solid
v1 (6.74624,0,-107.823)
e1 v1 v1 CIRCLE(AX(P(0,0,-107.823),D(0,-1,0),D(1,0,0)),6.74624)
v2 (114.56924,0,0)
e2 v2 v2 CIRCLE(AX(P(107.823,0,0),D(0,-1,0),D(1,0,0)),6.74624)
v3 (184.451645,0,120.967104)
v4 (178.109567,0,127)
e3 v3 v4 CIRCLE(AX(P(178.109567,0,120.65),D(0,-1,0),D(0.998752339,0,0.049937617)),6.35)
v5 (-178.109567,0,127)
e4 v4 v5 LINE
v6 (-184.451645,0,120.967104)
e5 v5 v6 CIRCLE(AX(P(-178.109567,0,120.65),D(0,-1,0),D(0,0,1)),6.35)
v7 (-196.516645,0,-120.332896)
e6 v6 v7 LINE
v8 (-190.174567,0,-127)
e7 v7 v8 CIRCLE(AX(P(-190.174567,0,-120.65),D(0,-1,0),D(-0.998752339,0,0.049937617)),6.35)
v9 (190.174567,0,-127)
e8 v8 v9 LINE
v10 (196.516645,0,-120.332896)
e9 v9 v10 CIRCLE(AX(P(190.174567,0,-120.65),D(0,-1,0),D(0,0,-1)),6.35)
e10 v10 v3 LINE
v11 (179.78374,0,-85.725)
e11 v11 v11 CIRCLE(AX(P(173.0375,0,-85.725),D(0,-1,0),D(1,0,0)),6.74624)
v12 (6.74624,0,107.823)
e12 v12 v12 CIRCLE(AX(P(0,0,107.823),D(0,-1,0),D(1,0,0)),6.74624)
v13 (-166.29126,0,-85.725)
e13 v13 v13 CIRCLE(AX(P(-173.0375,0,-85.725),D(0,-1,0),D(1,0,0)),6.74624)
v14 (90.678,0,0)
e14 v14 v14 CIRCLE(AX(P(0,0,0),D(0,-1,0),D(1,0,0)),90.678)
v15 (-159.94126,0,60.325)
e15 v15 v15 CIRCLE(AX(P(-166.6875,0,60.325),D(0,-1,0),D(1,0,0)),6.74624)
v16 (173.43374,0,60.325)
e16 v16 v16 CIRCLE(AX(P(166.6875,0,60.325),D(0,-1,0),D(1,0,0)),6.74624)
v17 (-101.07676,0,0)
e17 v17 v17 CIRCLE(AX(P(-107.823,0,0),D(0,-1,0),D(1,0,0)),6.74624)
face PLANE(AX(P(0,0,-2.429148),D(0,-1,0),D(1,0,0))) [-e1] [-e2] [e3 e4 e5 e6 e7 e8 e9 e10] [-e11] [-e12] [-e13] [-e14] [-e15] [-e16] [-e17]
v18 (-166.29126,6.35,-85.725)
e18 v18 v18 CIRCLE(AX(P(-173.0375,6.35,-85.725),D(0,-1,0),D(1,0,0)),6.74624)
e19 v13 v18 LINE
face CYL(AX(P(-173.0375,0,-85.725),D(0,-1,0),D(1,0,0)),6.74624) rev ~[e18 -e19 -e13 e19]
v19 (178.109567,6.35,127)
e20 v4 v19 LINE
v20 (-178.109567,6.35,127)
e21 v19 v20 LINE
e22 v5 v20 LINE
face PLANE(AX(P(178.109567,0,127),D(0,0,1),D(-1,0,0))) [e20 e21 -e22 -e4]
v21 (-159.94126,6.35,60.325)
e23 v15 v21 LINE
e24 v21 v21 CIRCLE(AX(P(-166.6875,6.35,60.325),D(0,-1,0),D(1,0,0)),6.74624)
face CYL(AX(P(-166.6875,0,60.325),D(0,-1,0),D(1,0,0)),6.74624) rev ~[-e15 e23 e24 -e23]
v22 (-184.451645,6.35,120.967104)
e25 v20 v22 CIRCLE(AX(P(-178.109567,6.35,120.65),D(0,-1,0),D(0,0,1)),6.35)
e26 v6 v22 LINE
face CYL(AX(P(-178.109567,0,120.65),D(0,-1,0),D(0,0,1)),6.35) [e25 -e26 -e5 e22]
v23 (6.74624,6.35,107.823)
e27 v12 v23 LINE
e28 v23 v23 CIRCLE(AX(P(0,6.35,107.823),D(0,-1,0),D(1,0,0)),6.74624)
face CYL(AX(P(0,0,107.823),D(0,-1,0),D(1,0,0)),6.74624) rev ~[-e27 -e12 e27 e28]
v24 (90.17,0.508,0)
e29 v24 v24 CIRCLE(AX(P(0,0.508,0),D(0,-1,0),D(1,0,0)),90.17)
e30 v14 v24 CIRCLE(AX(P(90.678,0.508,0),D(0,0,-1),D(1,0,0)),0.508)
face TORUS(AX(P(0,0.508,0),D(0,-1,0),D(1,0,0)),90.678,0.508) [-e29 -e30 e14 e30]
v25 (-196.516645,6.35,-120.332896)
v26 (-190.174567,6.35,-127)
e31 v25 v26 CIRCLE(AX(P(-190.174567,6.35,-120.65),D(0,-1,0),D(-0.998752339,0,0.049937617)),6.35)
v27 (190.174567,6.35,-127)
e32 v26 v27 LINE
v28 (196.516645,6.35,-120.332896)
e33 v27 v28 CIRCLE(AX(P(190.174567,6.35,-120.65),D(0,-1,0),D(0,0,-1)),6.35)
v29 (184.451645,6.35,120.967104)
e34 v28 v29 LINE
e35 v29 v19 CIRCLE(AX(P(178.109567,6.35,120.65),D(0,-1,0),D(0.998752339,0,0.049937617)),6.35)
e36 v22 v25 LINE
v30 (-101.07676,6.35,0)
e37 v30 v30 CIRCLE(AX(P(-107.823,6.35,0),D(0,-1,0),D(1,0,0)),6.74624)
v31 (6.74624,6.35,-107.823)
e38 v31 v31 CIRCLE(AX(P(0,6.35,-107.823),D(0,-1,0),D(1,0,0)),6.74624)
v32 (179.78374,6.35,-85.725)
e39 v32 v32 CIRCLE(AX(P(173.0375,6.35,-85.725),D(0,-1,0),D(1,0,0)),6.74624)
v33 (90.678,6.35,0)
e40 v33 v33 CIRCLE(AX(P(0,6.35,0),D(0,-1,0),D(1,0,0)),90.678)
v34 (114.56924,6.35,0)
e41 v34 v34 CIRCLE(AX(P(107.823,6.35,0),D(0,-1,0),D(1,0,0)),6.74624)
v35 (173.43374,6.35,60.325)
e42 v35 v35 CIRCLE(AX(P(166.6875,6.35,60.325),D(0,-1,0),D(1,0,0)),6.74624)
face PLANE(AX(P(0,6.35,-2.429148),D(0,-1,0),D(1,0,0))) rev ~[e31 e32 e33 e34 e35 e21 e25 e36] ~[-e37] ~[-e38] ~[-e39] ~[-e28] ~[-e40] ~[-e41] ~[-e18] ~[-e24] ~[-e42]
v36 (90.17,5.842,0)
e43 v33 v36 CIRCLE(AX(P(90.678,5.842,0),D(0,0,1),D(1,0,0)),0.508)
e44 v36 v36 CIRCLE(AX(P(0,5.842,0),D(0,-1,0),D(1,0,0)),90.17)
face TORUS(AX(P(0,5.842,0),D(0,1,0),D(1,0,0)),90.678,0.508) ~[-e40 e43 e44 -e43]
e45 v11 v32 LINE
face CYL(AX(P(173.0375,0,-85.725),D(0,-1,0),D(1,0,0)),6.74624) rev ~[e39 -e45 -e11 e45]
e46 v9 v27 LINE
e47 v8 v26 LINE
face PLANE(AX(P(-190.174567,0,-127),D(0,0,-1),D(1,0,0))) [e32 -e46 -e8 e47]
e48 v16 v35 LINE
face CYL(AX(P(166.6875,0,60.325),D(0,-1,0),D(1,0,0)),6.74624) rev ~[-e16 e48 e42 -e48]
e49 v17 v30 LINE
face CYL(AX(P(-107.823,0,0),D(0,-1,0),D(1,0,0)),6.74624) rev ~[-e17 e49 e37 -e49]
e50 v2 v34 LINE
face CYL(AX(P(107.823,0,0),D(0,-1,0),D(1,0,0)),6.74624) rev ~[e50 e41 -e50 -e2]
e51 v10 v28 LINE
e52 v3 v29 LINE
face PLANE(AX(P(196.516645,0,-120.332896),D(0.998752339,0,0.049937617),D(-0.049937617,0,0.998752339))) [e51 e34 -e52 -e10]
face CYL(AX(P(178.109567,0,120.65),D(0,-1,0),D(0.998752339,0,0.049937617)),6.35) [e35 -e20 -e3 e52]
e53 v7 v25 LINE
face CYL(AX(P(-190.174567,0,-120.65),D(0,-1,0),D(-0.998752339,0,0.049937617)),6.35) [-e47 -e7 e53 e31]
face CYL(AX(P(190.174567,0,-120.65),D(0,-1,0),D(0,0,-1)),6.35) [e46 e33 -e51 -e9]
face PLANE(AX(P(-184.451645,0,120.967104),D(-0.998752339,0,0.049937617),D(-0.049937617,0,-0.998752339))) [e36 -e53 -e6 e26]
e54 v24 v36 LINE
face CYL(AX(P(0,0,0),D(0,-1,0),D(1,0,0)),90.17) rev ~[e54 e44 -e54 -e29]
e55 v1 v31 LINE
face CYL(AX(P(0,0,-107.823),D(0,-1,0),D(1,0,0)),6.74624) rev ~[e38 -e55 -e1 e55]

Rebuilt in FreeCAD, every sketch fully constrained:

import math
import FreeCAD as App
import Part
import Sketcher

V = App.Vector
Q = App.Units.Quantity


def edges_at(feature, points):
    """Names of the edges that pass closest to the given points."""
    edges = feature.Shape.Edges
    near = lambda p: min(range(len(edges)), key=lambda i: edges[i].distToShape(Part.Vertex(*p))[0])
    return sorted({f"Edge{near(p) + 1}" for p in points})

doc = App.newDocument("Part")
body = doc.addObject("PartDesign::Body", "Body")

# Sketch on XZ plane
sketch1 = body.newObject("Sketcher::SketchObject", "Sketch")
sketch1.AttachmentSupport = (doc.getObject("XZ_Plane"), [""])
sketch1.MapMode = "FlatFace"
sketch1.addGeometry([
    Part.ArcOfCircle(Part.Circle(V(-190, -121, 0), V(0, 0, 1), 6), math.radians(177), math.radians(270)),  # 0
    Part.LineSegment(V(-190, -127, 0), V(190, -127, 0)),  # 1
    Part.ArcOfCircle(Part.Circle(V(190, -121, 0), V(0, 0, 1), 6), math.radians(-90), math.radians(3)),  # 2
    Part.LineSegment(V(197, -120, 0), V(184, 121, 0)),  # 3
    Part.ArcOfCircle(Part.Circle(V(178, 121, 0), V(0, 0, 1), 6), math.radians(3), math.radians(90)),  # 4
    Part.LineSegment(V(178, 127, 0), V(-178, 127, 0)),  # 5
    Part.ArcOfCircle(Part.Circle(V(-178, 121, 0), V(0, 0, 1), 6), math.radians(90), math.radians(177)),  # 6
    Part.LineSegment(V(-184, 121, 0), V(-197, -120, 0)),  # 7
    Part.Circle(V(-173, -86, 0), V(0, 0, 1), 7),  # 8
    Part.Circle(V(173, -86, 0), V(0, 0, 1), 7),  # 9
    Part.Circle(V(-167, 60, 0), V(0, 0, 1), 7),  # 10
    Part.Circle(V(167, 60, 0), V(0, 0, 1), 7),  # 11
], False)
sketch1.addConstraint([
    Sketcher.Constraint("Tangent", 0, 2, 1, 1),
    Sketcher.Constraint("Tangent", 1, 2, 2, 1),
    Sketcher.Constraint("Tangent", 2, 2, 3, 1),
    Sketcher.Constraint("Tangent", 3, 2, 4, 1),
    Sketcher.Constraint("Tangent", 4, 2, 5, 1),
    Sketcher.Constraint("Tangent", 5, 2, 6, 1),
    Sketcher.Constraint("Tangent", 6, 2, 7, 1),
    Sketcher.Constraint("Tangent", 7, 2, 0, 1),
    Sketcher.Constraint("Horizontal", 1),
    Sketcher.Constraint("Horizontal", 5),
    Sketcher.Constraint("Equal", 0, 2),
    Sketcher.Constraint("Equal", 2, 4),
    Sketcher.Constraint("Equal", 4, 6),
    Sketcher.Constraint("Equal", 8, 9),
    Sketcher.Constraint("Equal", 9, 10),
    Sketcher.Constraint("Equal", 10, 11),
    Sketcher.Constraint("Symmetric", 8, 3, 9, 3, -2),
    Sketcher.Constraint("Symmetric", 10, 3, 11, 3, -2),
    Sketcher.Constraint("Symmetric", 3, 2, 6, 2, -2),
    Sketcher.Constraint("Radius", 0, Q("0.25 in")),
    Sketcher.Constraint("DistanceY", 0, 2, -1, 1, Q("5 in")),
    Sketcher.Constraint("DistanceY", -1, 1, 4, 2, Q("5 in")),
    Sketcher.Constraint("Diameter", 8, Q("0.5312 in")),
    Sketcher.Constraint("DistanceX", 8, 3, 10, 3, Q("0.25 in")),
    Sketcher.Constraint("DistanceY", 8, 3, 10, 3, Q("5.75 in")),
    Sketcher.Constraint("DistanceX", 8, 3, -1, 1, Q("6.8125 in")),
    Sketcher.Constraint("DistanceY", 8, 3, -1, 1, Q("3.375 in")),
    Sketcher.Constraint("DistanceX", 4, 3, 2, 3, Q("0.475 in")),
    Sketcher.Constraint("DistanceX", 1, 1, 1, 2, 380.349135),
])
pad1 = body.newObject("PartDesign::Pad", "Pad")
pad1.Profile = sketch1
pad1.Length = Q("0.25 in")
pad1.Reversed = True

# Sketch on XZ plane
sketch2 = body.newObject("Sketcher::SketchObject", "Sketch001")
sketch2.AttachmentSupport = (doc.getObject("XZ_Plane"), [""])
sketch2.MapMode = "FlatFace"
sketch2.addGeometry(Part.Circle(V(0, 0, 0), V(0, 0, 1), 90), False)
sketch2.addConstraint([
    Sketcher.Constraint("Coincident", 0, 3, -1, 1),
    Sketcher.Constraint("Diameter", 0, Q("7.1 in")),
])
pocket1 = body.newObject("PartDesign::Pocket", "Pocket")
pocket1.Profile = sketch2
pocket1.Type = "ThroughAll"

# Sketch on XZ plane
sketch3 = body.newObject("Sketcher::SketchObject", "Sketch002")
sketch3.AttachmentSupport = (doc.getObject("XZ_Plane"), [""])
sketch3.MapMode = "FlatFace"
sketch3.addGeometry([
    Part.Circle(V(0, 108, 0), V(0, 0, 1), 7),
    Part.Circle(V(-108, 0, 0), V(0, 0, 1), 7),
    Part.Circle(V(0, -108, 0), V(0, 0, 1), 7),
    Part.Circle(V(108, 0, 0), V(0, 0, 1), 7),
], False)
sketch3.addConstraint([
    Sketcher.Constraint("Equal", 0, 1),
    Sketcher.Constraint("Equal", 1, 2),
    Sketcher.Constraint("Equal", 2, 3),
    Sketcher.Constraint("Symmetric", 0, 3, 2, 3, -1, 1),
    Sketcher.Constraint("Symmetric", 1, 3, 3, 3, -1, 1),
    Sketcher.Constraint("PointOnObject", 0, 3, -2),
    Sketcher.Constraint("PointOnObject", 1, 3, -1),
    Sketcher.Constraint("Diameter", 0, Q("0.5312 in")),
    Sketcher.Constraint("DistanceY", 2, 3, 0, 3, Q("8.49 in")),
    Sketcher.Constraint("DistanceX", 1, 3, 3, 3, Q("8.49 in")),
])
pocket2 = body.newObject("PartDesign::Pocket", "Pocket001")
pocket2.Profile = sketch3
pocket2.Type = "ThroughAll"
doc.recompute()

fillet = body.newObject("PartDesign::Fillet", "Fillet")
fillet.Base = (pocket2, edges_at(pocket2, [(-90.17, 6.35, 0), (-90.17, 0, 0)]))
fillet.Radius = Q("0.02 in")

doc.recompute()
